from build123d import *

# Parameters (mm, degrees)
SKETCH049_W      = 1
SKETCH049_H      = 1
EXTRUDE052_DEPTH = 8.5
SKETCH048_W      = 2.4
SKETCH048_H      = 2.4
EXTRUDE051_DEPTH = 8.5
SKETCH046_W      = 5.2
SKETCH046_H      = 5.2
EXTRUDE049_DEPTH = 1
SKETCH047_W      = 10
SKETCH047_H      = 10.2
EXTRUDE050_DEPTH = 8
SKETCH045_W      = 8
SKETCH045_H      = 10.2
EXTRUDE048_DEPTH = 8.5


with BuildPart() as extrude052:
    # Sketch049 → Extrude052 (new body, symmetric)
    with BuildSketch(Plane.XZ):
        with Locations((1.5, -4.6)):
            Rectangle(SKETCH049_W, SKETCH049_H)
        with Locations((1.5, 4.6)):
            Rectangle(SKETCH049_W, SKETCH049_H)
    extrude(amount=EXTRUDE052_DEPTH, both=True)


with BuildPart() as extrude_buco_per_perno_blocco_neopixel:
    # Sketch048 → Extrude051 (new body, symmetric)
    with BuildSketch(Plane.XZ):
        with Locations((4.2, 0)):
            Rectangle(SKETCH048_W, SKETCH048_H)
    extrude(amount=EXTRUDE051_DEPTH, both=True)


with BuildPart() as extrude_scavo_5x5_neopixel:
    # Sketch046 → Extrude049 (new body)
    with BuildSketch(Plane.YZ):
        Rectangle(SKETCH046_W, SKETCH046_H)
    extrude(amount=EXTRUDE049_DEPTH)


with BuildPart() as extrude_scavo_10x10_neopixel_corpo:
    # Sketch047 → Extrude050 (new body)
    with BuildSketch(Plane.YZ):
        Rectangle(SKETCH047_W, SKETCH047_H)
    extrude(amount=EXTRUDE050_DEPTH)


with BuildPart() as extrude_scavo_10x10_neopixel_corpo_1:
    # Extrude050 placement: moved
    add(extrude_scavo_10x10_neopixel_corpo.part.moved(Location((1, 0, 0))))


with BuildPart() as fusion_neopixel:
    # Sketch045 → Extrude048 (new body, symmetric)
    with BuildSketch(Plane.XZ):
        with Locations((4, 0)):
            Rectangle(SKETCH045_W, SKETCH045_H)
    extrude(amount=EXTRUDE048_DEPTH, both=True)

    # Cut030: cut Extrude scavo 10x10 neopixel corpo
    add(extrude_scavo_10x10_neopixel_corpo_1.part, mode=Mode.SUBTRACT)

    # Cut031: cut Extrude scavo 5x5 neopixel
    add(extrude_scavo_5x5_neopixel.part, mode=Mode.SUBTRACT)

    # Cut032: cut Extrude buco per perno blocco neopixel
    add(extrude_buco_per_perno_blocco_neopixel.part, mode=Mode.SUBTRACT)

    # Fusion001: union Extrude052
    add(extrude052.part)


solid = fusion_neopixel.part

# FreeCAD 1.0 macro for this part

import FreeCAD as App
import Part
import Sketcher
Q = App.Units.Quantity


def add_polygon(sketch, points):
    """Adds a closed chain of lines whose ends are joined by coincident constraints."""
    first, n = sketch.GeometryCount, len(points)
    for a, b in zip(points, points[1:] + points[:1]):
        sketch.addGeometry(Part.LineSegment(App.Vector(*a, 0), App.Vector(*b, 0)), False)
    for i in range(n):
        sketch.addConstraint(Sketcher.Constraint("Coincident", first + i, 2, first + (i + 1) % n, 1))

doc = App.newDocument("Part")
body = doc.addObject("PartDesign::Body", "Body")
body.AllowCompound = True

sketch1 = body.newObject("Sketcher::SketchObject", "Sketch")
sketch1.AttachmentSupport = (doc.getObject("XZ_Plane"), [""])
sketch1.MapMode = "FlatFace"
add_polygon(sketch1, [(1, -4.1), (1, -5.1), (2, -5.1), (2, -4.1)])
add_polygon(sketch1, [(1, 5.1), (1, 4.1), (2, 4.1), (2, 5.1)])
sketch1.addConstraint([
    Sketcher.Constraint("Vertical", 0),
    Sketcher.Constraint("Horizontal", 1),
    Sketcher.Constraint("Vertical", 2),
    Sketcher.Constraint("Horizontal", 3),
    Sketcher.Constraint("Vertical", 4),
    Sketcher.Constraint("Horizontal", 5),
    Sketcher.Constraint("Vertical", 6),
    Sketcher.Constraint("Horizontal", 7),
    Sketcher.Constraint("Symmetric", 3, 2, 4, 2, -1),
    Sketcher.Constraint("Symmetric", 1, 2, 6, 2, -1),
    Sketcher.Constraint("Equal", 7, 0),
    Sketcher.Constraint("DistanceX", 1, 1, 1, 2, Q("1 mm")),
    Sketcher.Constraint("DistanceX", -1, 1, 0, 2, Q("1 mm")),
    Sketcher.Constraint("DistanceY", 0, 2, -1, 1, Q("5.1 mm")),
])
pad1 = body.newObject("PartDesign::Pad", "Pad")
pad1.Profile = sketch1
pad1.Length = 17
pad1.Midplane = True
body2 = doc.addObject("PartDesign::Body", "Body001")

sketch2 = body2.newObject("Sketcher::SketchObject", "Sketch001")
sketch2.AttachmentSupport = (doc.getObject("XZ_Plane001"), [""])
sketch2.MapMode = "FlatFace"
add_polygon(sketch2, [(3, 1.2), (3, -1.2), (5.4, -1.2), (5.4, 1.2)])
sketch2.addConstraint([
    Sketcher.Constraint("Vertical", 0),
    Sketcher.Constraint("Horizontal", 1),
    Sketcher.Constraint("Vertical", 2),
    Sketcher.Constraint("Horizontal", 3),
    Sketcher.Constraint("Equal", 3, 0),
    Sketcher.Constraint("DistanceX", 1, 1, 1, 2, Q("2.4 mm")),
    Sketcher.Constraint("DistanceX", -1, 1, 0, 2, Q("3 mm")),
    Sketcher.Constraint("DistanceY", 0, 2, -1, 1, Q("1.2 mm")),
])
pad2 = body2.newObject("PartDesign::Pad", "Pad001")
pad2.Profile = sketch2
pad2.Length = 17
pad2.Midplane = True
body3 = doc.addObject("PartDesign::Body", "Body002")

sketch3 = body3.newObject("Sketcher::SketchObject", "Sketch002")
sketch3.AttachmentSupport = (doc.getObject("YZ_Plane002"), [""])
sketch3.MapMode = "FlatFace"
add_polygon(sketch3, [(-3, 3), (-3, -3), (3, -3), (3, 3)])
sketch3.addConstraint([
    Sketcher.Constraint("Vertical", 0),
    Sketcher.Constraint("Horizontal", 1),
    Sketcher.Constraint("Vertical", 2),
    Sketcher.Constraint("Horizontal", 3),
    Sketcher.Constraint("Symmetric", 0, 2, 2, 2, -1, 1),
    Sketcher.Constraint("Equal", 3, 0),
    Sketcher.Constraint("DistanceX", 1, 1, 1, 2, Q("5.2 mm")),
])
pad3 = body3.newObject("PartDesign::Pad", "Pad002")
pad3.Profile = sketch3
pad3.Length = 1
body4 = doc.addObject("PartDesign::Body", "Body003")

sketch4 = body4.newObject("Sketcher::SketchObject", "Sketch003")
sketch4.AttachmentSupport = (doc.getObject("YZ_Plane003"), [""])
sketch4.MapMode = "FlatFace"
add_polygon(sketch4, [(-5, 5), (-5, -5), (5, -5), (5, 5)])
sketch4.addConstraint([
    Sketcher.Constraint("Vertical", 0),
    Sketcher.Constraint("Horizontal", 1),
    Sketcher.Constraint("Vertical", 2),
    Sketcher.Constraint("Horizontal", 3),
    Sketcher.Constraint("Symmetric", 0, 2, 2, 2, -1, 1),
    Sketcher.Constraint("DistanceX", 1, 1, 1, 2, Q("10 mm")),
    Sketcher.Constraint("DistanceY", 0, 2, 0, 1, Q("10.2 mm")),
])
pad4 = body4.newObject("PartDesign::Pad", "Pad003")
pad4.Profile = sketch4
pad4.Length = 8
body5 = doc.addObject("PartDesign::Body", "Body004")
doc.recompute()

body4.Placement = App.Placement(App.Vector(1, 0, 0), App.Rotation(App.Vector(0, 0, 1), 0))
boolean = body5.newObject("PartDesign::Boolean", "Boolean")
boolean.Type = "Fuse"
boolean.addObjects([body4])
body6 = doc.addObject("PartDesign::Body", "Body005")

sketch5 = body6.newObject("Sketcher::SketchObject", "Sketch004")
sketch5.AttachmentSupport = (doc.getObject("XZ_Plane005"), [""])
sketch5.MapMode = "FlatFace"
add_polygon(sketch5, [(0, 5), (0, -5), (8, -5), (8, 5)])
sketch5.addConstraint([
    Sketcher.Constraint("Vertical", 0),
    Sketcher.Constraint("Horizontal", 1),
    Sketcher.Constraint("Vertical", 2),
    Sketcher.Constraint("Horizontal", 3),
    Sketcher.Constraint("Symmetric", 0, 2, 3, 2, -1, 1),
    Sketcher.Constraint("DistanceX", 1, 1, 1, 2, Q("8 mm")),
    Sketcher.Constraint("DistanceY", 0, 2, 0, 1, Q("10.2 mm")),
])
pad5 = body6.newObject("PartDesign::Pad", "Pad004")
pad5.Profile = sketch5
pad5.Length = 17
pad5.Midplane = True
doc.recompute()

boolean2 = body6.newObject("PartDesign::Boolean", "Boolean001")
boolean2.Type = "Cut"
boolean2.addObjects([body5])
doc.recompute()

boolean3 = body6.newObject("PartDesign::Boolean", "Boolean002")
boolean3.Type = "Cut"
boolean3.addObjects([body3])
doc.recompute()

boolean4 = body6.newObject("PartDesign::Boolean", "Boolean003")
boolean4.Type = "Cut"
boolean4.addObjects([body2])
doc.recompute()

boolean5 = body6.newObject("PartDesign::Boolean", "Boolean004")
boolean5.Type = "Fuse"
boolean5.addObjects([body])

doc.recompute()
